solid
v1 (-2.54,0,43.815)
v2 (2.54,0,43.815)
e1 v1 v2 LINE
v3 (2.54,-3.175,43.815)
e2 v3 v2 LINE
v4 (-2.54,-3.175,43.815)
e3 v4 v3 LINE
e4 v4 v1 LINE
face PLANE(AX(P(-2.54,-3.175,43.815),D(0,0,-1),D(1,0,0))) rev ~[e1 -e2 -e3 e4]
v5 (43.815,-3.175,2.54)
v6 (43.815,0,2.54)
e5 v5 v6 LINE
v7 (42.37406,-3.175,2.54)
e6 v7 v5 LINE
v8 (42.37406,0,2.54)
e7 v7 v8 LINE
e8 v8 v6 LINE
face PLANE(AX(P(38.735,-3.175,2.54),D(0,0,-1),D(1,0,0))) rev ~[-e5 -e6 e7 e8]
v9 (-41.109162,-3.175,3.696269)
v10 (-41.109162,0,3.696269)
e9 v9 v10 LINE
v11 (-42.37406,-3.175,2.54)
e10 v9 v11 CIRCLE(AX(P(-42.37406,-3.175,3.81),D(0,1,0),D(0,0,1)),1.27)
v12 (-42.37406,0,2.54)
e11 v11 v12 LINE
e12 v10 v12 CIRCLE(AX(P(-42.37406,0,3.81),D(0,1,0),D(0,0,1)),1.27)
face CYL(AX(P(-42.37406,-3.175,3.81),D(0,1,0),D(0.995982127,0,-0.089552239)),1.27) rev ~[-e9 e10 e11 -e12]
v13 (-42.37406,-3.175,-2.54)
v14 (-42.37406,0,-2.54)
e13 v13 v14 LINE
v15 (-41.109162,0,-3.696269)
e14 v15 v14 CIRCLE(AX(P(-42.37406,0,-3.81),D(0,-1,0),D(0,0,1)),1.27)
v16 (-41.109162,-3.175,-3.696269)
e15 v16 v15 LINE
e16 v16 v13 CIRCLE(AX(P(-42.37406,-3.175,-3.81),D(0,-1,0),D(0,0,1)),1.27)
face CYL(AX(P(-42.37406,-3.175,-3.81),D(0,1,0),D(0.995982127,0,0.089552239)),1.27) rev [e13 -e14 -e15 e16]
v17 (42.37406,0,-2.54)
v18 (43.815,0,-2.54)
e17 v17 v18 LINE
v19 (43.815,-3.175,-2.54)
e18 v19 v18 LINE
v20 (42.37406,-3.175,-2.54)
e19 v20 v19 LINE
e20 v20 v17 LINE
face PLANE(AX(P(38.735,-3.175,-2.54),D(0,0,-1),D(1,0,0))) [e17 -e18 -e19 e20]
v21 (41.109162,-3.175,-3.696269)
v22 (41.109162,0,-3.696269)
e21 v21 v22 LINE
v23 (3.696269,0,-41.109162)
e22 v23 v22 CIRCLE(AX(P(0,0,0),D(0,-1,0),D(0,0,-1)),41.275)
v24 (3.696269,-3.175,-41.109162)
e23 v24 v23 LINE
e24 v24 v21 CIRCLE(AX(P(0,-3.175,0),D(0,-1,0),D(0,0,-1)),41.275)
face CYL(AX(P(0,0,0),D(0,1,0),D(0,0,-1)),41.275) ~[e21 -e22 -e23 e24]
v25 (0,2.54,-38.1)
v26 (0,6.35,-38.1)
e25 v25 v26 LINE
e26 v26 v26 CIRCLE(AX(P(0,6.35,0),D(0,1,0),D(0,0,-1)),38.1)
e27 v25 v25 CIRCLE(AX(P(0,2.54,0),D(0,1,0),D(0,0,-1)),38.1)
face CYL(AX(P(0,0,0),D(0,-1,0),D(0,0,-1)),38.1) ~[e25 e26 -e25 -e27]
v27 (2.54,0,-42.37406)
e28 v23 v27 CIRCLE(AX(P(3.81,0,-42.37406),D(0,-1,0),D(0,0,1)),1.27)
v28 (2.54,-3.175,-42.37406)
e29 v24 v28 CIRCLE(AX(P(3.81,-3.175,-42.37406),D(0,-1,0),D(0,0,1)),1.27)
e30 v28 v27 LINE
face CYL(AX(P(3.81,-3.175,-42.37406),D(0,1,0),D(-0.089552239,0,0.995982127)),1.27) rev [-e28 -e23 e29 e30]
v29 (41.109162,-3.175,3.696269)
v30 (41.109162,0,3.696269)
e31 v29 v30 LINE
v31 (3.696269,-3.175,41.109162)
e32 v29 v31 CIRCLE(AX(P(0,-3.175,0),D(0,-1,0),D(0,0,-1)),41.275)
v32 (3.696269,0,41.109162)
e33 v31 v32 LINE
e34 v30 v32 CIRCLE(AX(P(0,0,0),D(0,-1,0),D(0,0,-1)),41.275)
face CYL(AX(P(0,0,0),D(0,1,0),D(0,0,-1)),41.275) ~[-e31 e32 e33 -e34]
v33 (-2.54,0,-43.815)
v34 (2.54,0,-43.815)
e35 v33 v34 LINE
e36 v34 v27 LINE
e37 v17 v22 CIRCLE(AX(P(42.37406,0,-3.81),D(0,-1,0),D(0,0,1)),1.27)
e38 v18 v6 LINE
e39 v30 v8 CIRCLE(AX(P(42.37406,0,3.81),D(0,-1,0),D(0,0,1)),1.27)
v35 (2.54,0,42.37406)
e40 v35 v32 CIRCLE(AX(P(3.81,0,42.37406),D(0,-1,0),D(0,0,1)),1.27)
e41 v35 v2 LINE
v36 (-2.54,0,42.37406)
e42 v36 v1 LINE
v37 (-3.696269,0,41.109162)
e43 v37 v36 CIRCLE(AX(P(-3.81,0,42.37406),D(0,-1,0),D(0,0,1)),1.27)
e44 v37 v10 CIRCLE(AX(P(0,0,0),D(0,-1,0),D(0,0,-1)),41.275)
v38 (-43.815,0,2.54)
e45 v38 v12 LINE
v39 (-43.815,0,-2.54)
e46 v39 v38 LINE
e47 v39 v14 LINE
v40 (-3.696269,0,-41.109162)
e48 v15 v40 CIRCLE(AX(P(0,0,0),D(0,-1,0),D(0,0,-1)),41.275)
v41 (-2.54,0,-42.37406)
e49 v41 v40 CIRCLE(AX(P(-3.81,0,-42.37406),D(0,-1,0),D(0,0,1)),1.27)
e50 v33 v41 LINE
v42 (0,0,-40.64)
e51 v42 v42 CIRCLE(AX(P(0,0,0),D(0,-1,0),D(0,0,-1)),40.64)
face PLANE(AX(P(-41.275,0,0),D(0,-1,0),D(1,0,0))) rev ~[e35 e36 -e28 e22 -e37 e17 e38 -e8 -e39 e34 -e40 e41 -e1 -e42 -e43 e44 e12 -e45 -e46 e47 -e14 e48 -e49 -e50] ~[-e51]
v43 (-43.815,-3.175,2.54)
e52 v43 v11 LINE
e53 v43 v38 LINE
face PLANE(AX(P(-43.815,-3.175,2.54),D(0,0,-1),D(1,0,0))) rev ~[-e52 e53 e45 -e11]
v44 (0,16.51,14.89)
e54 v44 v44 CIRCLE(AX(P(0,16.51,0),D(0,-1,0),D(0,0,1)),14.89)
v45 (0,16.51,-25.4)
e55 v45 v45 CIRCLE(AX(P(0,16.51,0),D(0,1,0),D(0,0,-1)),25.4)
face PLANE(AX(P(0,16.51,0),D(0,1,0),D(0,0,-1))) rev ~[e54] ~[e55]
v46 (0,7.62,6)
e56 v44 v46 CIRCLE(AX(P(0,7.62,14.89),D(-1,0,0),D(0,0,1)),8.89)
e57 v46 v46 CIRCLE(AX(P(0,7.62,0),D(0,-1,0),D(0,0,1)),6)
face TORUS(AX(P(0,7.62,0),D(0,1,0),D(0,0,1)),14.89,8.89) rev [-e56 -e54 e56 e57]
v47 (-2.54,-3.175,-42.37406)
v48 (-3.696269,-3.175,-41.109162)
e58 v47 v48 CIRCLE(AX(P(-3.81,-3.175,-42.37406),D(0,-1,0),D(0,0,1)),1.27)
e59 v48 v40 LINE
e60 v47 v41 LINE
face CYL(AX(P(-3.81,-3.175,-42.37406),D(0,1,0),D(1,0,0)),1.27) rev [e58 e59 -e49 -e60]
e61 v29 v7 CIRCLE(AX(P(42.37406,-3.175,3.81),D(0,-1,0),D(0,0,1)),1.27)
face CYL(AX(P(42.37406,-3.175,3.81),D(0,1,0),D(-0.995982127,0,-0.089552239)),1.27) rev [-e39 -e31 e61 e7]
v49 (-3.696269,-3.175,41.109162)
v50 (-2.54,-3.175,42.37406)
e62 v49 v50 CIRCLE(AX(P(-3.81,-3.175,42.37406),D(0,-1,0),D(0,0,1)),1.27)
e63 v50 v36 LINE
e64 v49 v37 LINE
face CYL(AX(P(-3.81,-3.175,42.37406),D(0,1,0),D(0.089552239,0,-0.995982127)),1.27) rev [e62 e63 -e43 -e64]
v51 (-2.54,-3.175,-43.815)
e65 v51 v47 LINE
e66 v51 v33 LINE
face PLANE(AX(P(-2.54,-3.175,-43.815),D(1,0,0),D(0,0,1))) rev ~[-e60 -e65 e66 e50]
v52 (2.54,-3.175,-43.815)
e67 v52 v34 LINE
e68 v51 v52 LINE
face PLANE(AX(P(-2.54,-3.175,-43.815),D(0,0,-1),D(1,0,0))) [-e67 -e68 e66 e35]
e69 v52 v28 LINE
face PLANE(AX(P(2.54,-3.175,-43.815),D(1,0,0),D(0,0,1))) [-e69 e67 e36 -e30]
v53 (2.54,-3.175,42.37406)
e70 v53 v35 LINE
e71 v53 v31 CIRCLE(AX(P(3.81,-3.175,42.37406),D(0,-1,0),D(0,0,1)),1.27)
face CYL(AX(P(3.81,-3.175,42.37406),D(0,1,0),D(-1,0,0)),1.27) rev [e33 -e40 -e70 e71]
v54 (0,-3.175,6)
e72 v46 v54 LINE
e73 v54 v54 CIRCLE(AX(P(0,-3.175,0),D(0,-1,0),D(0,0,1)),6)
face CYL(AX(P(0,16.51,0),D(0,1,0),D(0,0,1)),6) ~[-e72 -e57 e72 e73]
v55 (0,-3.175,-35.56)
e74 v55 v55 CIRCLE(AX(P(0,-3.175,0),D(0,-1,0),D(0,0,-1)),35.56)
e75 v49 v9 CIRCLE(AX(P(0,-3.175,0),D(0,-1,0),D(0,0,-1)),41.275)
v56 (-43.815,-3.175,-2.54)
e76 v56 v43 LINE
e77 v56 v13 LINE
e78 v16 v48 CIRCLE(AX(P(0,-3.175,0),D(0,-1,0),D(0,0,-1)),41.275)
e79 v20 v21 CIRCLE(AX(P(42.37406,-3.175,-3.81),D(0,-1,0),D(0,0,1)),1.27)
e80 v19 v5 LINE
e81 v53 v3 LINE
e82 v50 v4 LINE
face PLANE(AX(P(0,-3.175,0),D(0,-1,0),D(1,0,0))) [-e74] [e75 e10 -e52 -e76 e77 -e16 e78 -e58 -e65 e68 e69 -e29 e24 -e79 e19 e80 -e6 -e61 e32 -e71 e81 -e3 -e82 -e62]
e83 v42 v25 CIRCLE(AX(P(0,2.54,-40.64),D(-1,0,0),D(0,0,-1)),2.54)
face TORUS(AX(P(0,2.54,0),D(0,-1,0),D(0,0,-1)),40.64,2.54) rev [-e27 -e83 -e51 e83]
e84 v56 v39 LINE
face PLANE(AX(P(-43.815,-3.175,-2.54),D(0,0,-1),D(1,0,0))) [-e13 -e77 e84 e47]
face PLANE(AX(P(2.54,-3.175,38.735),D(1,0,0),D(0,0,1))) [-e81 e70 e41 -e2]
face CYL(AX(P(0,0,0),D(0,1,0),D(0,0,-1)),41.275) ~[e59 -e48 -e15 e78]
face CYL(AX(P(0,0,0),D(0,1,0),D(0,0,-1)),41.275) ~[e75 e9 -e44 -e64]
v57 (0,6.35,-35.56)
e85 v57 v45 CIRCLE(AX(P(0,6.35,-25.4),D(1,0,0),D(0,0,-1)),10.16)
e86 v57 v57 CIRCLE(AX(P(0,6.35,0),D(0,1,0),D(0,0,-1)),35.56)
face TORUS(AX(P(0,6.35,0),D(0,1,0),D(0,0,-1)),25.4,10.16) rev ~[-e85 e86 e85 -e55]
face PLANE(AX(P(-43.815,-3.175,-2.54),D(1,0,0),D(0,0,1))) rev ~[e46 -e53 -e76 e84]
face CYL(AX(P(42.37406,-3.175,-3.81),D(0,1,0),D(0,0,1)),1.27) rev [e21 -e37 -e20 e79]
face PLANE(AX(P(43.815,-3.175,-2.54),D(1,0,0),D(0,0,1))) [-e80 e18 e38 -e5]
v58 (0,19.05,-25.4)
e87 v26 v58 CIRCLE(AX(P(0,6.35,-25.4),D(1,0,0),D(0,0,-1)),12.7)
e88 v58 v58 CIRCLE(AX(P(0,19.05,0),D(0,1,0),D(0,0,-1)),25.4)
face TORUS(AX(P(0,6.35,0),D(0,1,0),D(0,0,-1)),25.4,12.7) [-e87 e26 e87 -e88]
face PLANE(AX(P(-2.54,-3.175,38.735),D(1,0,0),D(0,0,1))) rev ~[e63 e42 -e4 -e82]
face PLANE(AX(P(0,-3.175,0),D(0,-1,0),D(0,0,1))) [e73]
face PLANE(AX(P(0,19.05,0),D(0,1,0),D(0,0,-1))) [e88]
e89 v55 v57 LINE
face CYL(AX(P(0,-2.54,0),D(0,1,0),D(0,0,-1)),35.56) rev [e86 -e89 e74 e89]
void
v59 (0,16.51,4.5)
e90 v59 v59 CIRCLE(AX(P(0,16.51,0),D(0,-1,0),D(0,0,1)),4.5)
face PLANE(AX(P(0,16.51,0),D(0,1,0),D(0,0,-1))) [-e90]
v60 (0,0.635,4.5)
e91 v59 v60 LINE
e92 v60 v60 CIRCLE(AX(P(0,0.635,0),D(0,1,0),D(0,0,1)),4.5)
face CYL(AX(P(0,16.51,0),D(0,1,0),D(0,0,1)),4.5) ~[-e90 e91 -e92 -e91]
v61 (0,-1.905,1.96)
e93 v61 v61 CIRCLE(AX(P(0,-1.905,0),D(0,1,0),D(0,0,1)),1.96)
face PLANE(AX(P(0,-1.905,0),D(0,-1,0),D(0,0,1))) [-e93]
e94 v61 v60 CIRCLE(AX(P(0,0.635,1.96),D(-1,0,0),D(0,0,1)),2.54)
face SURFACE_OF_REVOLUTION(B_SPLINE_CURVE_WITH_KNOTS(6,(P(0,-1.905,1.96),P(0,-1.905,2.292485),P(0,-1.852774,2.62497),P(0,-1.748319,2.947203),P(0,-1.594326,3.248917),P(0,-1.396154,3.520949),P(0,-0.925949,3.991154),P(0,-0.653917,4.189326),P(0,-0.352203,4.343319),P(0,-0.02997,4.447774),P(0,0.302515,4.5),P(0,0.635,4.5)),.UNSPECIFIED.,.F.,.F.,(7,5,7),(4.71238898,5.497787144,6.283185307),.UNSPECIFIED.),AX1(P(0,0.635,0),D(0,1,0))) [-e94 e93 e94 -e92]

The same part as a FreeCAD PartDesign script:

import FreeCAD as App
import Part
import Sketcher

V = App.Vector
Q = App.Units.Quantity


def edges_at(feature, points):
    """Names of the edges that pass closest to the given points."""
    edges = feature.Shape.Edges
    near = lambda p: min(range(len(edges)), key=lambda i: edges[i].distToShape(Part.Vertex(*p))[0])
    return sorted({f"Edge{near(p) + 1}" for p in points})


def faces_at(feature, points):
    """Names of the faces that lie closest to the given points."""
    faces = feature.Shape.Faces
    near = lambda p: min(range(len(faces)), key=lambda i: faces[i].distToShape(Part.Vertex(*p))[0])
    return sorted({f"Face{near(p) + 1}" for p in points})


def add_polygon(sketch, points):
    """Adds a closed chain of lines whose ends are joined by coincident constraints."""
    first, n = sketch.GeometryCount, len(points)
    for a, b in zip(points, points[1:] + points[:1]):
        sketch.addGeometry(Part.LineSegment(App.Vector(*a, 0), App.Vector(*b, 0)), False)
    for i in range(n):
        sketch.addConstraint(Sketcher.Constraint("Coincident", first + i, 2, first + (i + 1) % n, 1))

doc = App.newDocument("Part")
body = doc.addObject("PartDesign::Body", "Body")

sketch1 = doc.addObject("Sketcher::SketchObject", "Sketch")
body.addObject(sketch1)
sketch1.AttachmentSupport = (doc.XZ_Plane, [""])
sketch1.MapMode = "FlatFace"
sketch1.addGeometry(Part.Circle(V(0, 0, 0), V(0, 0, 1), 38.1), False)
sketch1.addConstraint(Sketcher.Constraint("Coincident", 0, 3, -1, 1))
sketch1.addConstraint(Sketcher.Constraint("Diameter", 0, Q("3 in")))
pad1 = doc.addObject("PartDesign::Pad", "Pad")
body.addObject(pad1)
pad1.Profile = sketch1
pad1.Length = Q("0.75 in")
pad1.Reversed = True
doc.recompute()

fillet = doc.addObject("PartDesign::Fillet", "Fillet")
body.addObject(fillet)
fillet.Base = (pad1, edges_at(pad1, [(0, 19.05, 38.1)]))
fillet.Radius = Q("0.5 in")

sketch2 = doc.addObject("Sketcher::SketchObject", "Sketch001")
body.addObject(sketch2)
sketch2.AttachmentSupport = (doc.XZ_Plane, [""])
sketch2.MapMode = "FlatFace"
sketch2.addGeometry(Part.Circle(V(0, 0, 0), V(0, 0, 1), 41.275), False)
sketch2.addConstraint(Sketcher.Constraint("Coincident", 0, 3, -1, 1))
sketch2.addConstraint(Sketcher.Constraint("Diameter", 0, Q("3.25 in")))
pad2 = doc.addObject("PartDesign::Pad", "Pad001")
body.addObject(pad2)
pad2.Profile = sketch2
pad2.Length = Q("0.125 in")
doc.recompute()

thickness = doc.addObject("PartDesign::Thickness", "Thickness")
body.addObject(thickness)
thickness.Base = (pad2, faces_at(pad2, [(0, -3.175, 0)]))
thickness.Value = Q("0.1 in")
thickness.Reversed = True
thickness.Join = "Intersection"
doc.recompute()

fillet2 = doc.addObject("PartDesign::Fillet", "Fillet001")
body.addObject(fillet2)
fillet2.Base = (thickness, edges_at(thickness, [(0, 0, 38.1)]))
fillet2.Radius = Q("0.1 in")

sketch3 = doc.addObject("Sketcher::SketchObject", "Sketch002")
body.addObject(sketch3)
sketch3.AttachmentSupport = (doc.XZ_Plane, [""])
sketch3.MapMode = "FlatFace"
sketch3.AttachmentOffset = App.Placement(V(0, 0, 0.125 * 25.4), App.Rotation())
add_polygon(sketch3, [(-43.815, 2.54), (-43.815, -2.54), (-38.735, -2.54), (-38.735, 2.54)])
add_polygon(sketch3, [(-2.54, 43.815), (-2.54, 38.735), (2.54, 38.735), (2.54, 43.815)])
add_polygon(sketch3, [(38.735, 2.54), (38.735, -2.54), (43.815, -2.54), (43.815, 2.54)])
add_polygon(sketch3, [(-2.54, -38.735), (-2.54, -43.815), (2.54, -43.815), (2.54, -38.735)])
sketch3.addConstraint(Sketcher.Constraint("Vertical", 0))
sketch3.addConstraint(Sketcher.Constraint("Horizontal", 1))
sketch3.addConstraint(Sketcher.Constraint("Vertical", 2))
sketch3.addConstraint(Sketcher.Constraint("Horizontal", 3))
sketch3.addConstraint(Sketcher.Constraint("Vertical", 4))
sketch3.addConstraint(Sketcher.Constraint("Horizontal", 5))
sketch3.addConstraint(Sketcher.Constraint("Vertical", 6))
sketch3.addConstraint(Sketcher.Constraint("Horizontal", 7))
sketch3.addConstraint(Sketcher.Constraint("Vertical", 8))
sketch3.addConstraint(Sketcher.Constraint("Horizontal", 9))
sketch3.addConstraint(Sketcher.Constraint("Vertical", 10))
sketch3.addConstraint(Sketcher.Constraint("Horizontal", 11))
sketch3.addConstraint(Sketcher.Constraint("Vertical", 12))
sketch3.addConstraint(Sketcher.Constraint("Horizontal", 13))
sketch3.addConstraint(Sketcher.Constraint("Vertical", 14))
sketch3.addConstraint(Sketcher.Constraint("Horizontal", 15))
sketch3.addConstraint(Sketcher.Constraint("Symmetric", 2, 2, 8, 2, -1, 1))
sketch3.addConstraint(Sketcher.Constraint("Symmetric", 0, 2, 10, 2, -1, 1))
sketch3.addConstraint(Sketcher.Constraint("Symmetric", 6, 2, 12, 2, -1, 1))
sketch3.addConstraint(Sketcher.Constraint("Symmetric", 4, 2, 14, 2, -1, 1))
sketch3.addConstraint(Sketcher.Constraint("Horizontal", 1, 2, 8, 2))
sketch3.addConstraint(Sketcher.Constraint("Vertical", 7, 2, 12, 2))
sketch3.addConstraint(Sketcher.Constraint("Equal", 3, 5))
sketch3.addConstraint(Sketcher.Constraint("Equal", 15, 0))
sketch3.addConstraint(Sketcher.Constraint("Equal", 2, 4))
sketch3.addConstraint(Sketcher.Constraint("DistanceX", 1, 1, 1, 2, Q("0.2 in")))
sketch3.addConstraint(Sketcher.Constraint("DistanceX", 1, 2, 8, 2, Q("3.05 in")))
sketch3.addConstraint(Sketcher.Constraint("DistanceY", -1, 1, 4, 2, Q("1.525 in")))
pad3 = doc.addObject("PartDesign::Pad", "Pad002")
body.addObject(pad3)
pad3.Profile = sketch3
pad3.Length = Q("0.125 in")
pad3.Reversed = True
doc.recompute()

fillet3 = doc.addObject("PartDesign::Fillet", "Fillet002")
body.addObject(fillet3)
fillet3.Base = (pad3, edges_at(pad3, [
    (-2.54, -1.587, 41.197),
    (2.54, -1.587, 41.197),
    (41.197, -1.587, 2.54),
    (41.197, -1.587, -2.54),
    (2.54, -1.587, -41.197),
    (-2.54, -1.587, -41.197),
    (-41.197, -1.587, -2.54),
    (-41.197, -1.587, 2.54),
]))
fillet3.Radius = Q("0.05 in")

sketch4 = doc.addObject("Sketcher::SketchObject", "Sketch003")
body.addObject(sketch4)
sketch4.AttachmentSupport = (doc.XZ_Plane, [""])
sketch4.MapMode = "FlatFace"
sketch4.AttachmentOffset = App.Placement(V(0, 0, 0.1 * 25.4), App.Rotation())
sketch4.addGeometry(Part.Circle(V(0, 0, 0), V(0, 0, 1), 38.735), False)
sketch4.addGeometry(Part.Circle(V(0, 0, 0), V(0, 0, 1), 35.56), False)
sketch4.addConstraint(Sketcher.Constraint("Coincident", 0, 3, -1, 1))
sketch4.addConstraint(Sketcher.Constraint("Coincident", 1, 3, -1, 1))
sketch4.addConstraint(Sketcher.Constraint("Diameter", 1, Q("2.8 in")))
sketch4.addConstraint(Sketcher.Constraint("Diameter", 0, Q("3.05 in")))
pad4 = doc.addObject("PartDesign::Pad", "Pad003")
body.addObject(pad4)
pad4.Profile = sketch4
pad4.Length = Q("0.025 in")

sketch5 = doc.addObject("Sketcher::SketchObject", "Sketch004")
body.addObject(sketch5)
sketch5.AttachmentSupport = (doc.XZ_Plane, [""])
sketch5.MapMode = "FlatFace"
sketch5.AttachmentOffset = App.Placement(V(0, 0, -0.65 * 25.4), App.Rotation())
sketch5.addGeometry(Part.Circle(V(0, 0, 0), V(0, 0, 1), 6), False)
sketch5.addGeometry(Part.Circle(V(0, 0, 0), V(0, 0, 1), 4.5), False)
sketch5.addConstraint(Sketcher.Constraint("Coincident", 0, 3, -1, 1))
sketch5.addConstraint(Sketcher.Constraint("Coincident", 1, 3, -1, 1))
sketch5.addConstraint(Sketcher.Constraint("Diameter", 0, 12.0))
sketch5.addConstraint(Sketcher.Constraint("Diameter", 1, 9.0))
pad5 = doc.addObject("PartDesign::Pad", "Pad004")
body.addObject(pad5)
pad5.Profile = sketch5
pad5.Length = Q("0.775 in")
doc.recompute()

fillet4 = doc.addObject("PartDesign::Fillet", "Fillet003")
body.addObject(fillet4)
fillet4.Base = (pad5, edges_at(pad5, [(0, 16.51, -6)]))
fillet4.Radius = Q("0.35 in")

sketch6 = doc.addObject("Sketcher::SketchObject", "Sketch005")
body.addObject(sketch6)
sketch6.AttachmentSupport = (doc.XZ_Plane, [""])
sketch6.MapMode = "FlatFace"
sketch6.AttachmentOffset = App.Placement(V(0, 0, 0.125 * 25.4), App.Rotation())
sketch6.addGeometry(Part.Circle(V(0, 0, 0), V(0, 0, 1), 6), False)
sketch6.addConstraint(Sketcher.Constraint("Coincident", 0, 3, -1, 1))
sketch6.addConstraint(Sketcher.Constraint("Diameter", 0, 12.0))
pad6 = doc.addObject("PartDesign::Pad", "Pad005")
body.addObject(pad6)
pad6.Profile = sketch6
pad6.Length = Q("0.05 in")
pad6.Reversed = True
doc.recompute()

fillet5 = doc.addObject("PartDesign::Fillet", "Fillet004")
body.addObject(fillet5)
fillet5.Base = (pad6, edges_at(pad6, [(0, -1.905, -4.5)]))
fillet5.Radius = Q("0.1 in")

doc.recompute()
